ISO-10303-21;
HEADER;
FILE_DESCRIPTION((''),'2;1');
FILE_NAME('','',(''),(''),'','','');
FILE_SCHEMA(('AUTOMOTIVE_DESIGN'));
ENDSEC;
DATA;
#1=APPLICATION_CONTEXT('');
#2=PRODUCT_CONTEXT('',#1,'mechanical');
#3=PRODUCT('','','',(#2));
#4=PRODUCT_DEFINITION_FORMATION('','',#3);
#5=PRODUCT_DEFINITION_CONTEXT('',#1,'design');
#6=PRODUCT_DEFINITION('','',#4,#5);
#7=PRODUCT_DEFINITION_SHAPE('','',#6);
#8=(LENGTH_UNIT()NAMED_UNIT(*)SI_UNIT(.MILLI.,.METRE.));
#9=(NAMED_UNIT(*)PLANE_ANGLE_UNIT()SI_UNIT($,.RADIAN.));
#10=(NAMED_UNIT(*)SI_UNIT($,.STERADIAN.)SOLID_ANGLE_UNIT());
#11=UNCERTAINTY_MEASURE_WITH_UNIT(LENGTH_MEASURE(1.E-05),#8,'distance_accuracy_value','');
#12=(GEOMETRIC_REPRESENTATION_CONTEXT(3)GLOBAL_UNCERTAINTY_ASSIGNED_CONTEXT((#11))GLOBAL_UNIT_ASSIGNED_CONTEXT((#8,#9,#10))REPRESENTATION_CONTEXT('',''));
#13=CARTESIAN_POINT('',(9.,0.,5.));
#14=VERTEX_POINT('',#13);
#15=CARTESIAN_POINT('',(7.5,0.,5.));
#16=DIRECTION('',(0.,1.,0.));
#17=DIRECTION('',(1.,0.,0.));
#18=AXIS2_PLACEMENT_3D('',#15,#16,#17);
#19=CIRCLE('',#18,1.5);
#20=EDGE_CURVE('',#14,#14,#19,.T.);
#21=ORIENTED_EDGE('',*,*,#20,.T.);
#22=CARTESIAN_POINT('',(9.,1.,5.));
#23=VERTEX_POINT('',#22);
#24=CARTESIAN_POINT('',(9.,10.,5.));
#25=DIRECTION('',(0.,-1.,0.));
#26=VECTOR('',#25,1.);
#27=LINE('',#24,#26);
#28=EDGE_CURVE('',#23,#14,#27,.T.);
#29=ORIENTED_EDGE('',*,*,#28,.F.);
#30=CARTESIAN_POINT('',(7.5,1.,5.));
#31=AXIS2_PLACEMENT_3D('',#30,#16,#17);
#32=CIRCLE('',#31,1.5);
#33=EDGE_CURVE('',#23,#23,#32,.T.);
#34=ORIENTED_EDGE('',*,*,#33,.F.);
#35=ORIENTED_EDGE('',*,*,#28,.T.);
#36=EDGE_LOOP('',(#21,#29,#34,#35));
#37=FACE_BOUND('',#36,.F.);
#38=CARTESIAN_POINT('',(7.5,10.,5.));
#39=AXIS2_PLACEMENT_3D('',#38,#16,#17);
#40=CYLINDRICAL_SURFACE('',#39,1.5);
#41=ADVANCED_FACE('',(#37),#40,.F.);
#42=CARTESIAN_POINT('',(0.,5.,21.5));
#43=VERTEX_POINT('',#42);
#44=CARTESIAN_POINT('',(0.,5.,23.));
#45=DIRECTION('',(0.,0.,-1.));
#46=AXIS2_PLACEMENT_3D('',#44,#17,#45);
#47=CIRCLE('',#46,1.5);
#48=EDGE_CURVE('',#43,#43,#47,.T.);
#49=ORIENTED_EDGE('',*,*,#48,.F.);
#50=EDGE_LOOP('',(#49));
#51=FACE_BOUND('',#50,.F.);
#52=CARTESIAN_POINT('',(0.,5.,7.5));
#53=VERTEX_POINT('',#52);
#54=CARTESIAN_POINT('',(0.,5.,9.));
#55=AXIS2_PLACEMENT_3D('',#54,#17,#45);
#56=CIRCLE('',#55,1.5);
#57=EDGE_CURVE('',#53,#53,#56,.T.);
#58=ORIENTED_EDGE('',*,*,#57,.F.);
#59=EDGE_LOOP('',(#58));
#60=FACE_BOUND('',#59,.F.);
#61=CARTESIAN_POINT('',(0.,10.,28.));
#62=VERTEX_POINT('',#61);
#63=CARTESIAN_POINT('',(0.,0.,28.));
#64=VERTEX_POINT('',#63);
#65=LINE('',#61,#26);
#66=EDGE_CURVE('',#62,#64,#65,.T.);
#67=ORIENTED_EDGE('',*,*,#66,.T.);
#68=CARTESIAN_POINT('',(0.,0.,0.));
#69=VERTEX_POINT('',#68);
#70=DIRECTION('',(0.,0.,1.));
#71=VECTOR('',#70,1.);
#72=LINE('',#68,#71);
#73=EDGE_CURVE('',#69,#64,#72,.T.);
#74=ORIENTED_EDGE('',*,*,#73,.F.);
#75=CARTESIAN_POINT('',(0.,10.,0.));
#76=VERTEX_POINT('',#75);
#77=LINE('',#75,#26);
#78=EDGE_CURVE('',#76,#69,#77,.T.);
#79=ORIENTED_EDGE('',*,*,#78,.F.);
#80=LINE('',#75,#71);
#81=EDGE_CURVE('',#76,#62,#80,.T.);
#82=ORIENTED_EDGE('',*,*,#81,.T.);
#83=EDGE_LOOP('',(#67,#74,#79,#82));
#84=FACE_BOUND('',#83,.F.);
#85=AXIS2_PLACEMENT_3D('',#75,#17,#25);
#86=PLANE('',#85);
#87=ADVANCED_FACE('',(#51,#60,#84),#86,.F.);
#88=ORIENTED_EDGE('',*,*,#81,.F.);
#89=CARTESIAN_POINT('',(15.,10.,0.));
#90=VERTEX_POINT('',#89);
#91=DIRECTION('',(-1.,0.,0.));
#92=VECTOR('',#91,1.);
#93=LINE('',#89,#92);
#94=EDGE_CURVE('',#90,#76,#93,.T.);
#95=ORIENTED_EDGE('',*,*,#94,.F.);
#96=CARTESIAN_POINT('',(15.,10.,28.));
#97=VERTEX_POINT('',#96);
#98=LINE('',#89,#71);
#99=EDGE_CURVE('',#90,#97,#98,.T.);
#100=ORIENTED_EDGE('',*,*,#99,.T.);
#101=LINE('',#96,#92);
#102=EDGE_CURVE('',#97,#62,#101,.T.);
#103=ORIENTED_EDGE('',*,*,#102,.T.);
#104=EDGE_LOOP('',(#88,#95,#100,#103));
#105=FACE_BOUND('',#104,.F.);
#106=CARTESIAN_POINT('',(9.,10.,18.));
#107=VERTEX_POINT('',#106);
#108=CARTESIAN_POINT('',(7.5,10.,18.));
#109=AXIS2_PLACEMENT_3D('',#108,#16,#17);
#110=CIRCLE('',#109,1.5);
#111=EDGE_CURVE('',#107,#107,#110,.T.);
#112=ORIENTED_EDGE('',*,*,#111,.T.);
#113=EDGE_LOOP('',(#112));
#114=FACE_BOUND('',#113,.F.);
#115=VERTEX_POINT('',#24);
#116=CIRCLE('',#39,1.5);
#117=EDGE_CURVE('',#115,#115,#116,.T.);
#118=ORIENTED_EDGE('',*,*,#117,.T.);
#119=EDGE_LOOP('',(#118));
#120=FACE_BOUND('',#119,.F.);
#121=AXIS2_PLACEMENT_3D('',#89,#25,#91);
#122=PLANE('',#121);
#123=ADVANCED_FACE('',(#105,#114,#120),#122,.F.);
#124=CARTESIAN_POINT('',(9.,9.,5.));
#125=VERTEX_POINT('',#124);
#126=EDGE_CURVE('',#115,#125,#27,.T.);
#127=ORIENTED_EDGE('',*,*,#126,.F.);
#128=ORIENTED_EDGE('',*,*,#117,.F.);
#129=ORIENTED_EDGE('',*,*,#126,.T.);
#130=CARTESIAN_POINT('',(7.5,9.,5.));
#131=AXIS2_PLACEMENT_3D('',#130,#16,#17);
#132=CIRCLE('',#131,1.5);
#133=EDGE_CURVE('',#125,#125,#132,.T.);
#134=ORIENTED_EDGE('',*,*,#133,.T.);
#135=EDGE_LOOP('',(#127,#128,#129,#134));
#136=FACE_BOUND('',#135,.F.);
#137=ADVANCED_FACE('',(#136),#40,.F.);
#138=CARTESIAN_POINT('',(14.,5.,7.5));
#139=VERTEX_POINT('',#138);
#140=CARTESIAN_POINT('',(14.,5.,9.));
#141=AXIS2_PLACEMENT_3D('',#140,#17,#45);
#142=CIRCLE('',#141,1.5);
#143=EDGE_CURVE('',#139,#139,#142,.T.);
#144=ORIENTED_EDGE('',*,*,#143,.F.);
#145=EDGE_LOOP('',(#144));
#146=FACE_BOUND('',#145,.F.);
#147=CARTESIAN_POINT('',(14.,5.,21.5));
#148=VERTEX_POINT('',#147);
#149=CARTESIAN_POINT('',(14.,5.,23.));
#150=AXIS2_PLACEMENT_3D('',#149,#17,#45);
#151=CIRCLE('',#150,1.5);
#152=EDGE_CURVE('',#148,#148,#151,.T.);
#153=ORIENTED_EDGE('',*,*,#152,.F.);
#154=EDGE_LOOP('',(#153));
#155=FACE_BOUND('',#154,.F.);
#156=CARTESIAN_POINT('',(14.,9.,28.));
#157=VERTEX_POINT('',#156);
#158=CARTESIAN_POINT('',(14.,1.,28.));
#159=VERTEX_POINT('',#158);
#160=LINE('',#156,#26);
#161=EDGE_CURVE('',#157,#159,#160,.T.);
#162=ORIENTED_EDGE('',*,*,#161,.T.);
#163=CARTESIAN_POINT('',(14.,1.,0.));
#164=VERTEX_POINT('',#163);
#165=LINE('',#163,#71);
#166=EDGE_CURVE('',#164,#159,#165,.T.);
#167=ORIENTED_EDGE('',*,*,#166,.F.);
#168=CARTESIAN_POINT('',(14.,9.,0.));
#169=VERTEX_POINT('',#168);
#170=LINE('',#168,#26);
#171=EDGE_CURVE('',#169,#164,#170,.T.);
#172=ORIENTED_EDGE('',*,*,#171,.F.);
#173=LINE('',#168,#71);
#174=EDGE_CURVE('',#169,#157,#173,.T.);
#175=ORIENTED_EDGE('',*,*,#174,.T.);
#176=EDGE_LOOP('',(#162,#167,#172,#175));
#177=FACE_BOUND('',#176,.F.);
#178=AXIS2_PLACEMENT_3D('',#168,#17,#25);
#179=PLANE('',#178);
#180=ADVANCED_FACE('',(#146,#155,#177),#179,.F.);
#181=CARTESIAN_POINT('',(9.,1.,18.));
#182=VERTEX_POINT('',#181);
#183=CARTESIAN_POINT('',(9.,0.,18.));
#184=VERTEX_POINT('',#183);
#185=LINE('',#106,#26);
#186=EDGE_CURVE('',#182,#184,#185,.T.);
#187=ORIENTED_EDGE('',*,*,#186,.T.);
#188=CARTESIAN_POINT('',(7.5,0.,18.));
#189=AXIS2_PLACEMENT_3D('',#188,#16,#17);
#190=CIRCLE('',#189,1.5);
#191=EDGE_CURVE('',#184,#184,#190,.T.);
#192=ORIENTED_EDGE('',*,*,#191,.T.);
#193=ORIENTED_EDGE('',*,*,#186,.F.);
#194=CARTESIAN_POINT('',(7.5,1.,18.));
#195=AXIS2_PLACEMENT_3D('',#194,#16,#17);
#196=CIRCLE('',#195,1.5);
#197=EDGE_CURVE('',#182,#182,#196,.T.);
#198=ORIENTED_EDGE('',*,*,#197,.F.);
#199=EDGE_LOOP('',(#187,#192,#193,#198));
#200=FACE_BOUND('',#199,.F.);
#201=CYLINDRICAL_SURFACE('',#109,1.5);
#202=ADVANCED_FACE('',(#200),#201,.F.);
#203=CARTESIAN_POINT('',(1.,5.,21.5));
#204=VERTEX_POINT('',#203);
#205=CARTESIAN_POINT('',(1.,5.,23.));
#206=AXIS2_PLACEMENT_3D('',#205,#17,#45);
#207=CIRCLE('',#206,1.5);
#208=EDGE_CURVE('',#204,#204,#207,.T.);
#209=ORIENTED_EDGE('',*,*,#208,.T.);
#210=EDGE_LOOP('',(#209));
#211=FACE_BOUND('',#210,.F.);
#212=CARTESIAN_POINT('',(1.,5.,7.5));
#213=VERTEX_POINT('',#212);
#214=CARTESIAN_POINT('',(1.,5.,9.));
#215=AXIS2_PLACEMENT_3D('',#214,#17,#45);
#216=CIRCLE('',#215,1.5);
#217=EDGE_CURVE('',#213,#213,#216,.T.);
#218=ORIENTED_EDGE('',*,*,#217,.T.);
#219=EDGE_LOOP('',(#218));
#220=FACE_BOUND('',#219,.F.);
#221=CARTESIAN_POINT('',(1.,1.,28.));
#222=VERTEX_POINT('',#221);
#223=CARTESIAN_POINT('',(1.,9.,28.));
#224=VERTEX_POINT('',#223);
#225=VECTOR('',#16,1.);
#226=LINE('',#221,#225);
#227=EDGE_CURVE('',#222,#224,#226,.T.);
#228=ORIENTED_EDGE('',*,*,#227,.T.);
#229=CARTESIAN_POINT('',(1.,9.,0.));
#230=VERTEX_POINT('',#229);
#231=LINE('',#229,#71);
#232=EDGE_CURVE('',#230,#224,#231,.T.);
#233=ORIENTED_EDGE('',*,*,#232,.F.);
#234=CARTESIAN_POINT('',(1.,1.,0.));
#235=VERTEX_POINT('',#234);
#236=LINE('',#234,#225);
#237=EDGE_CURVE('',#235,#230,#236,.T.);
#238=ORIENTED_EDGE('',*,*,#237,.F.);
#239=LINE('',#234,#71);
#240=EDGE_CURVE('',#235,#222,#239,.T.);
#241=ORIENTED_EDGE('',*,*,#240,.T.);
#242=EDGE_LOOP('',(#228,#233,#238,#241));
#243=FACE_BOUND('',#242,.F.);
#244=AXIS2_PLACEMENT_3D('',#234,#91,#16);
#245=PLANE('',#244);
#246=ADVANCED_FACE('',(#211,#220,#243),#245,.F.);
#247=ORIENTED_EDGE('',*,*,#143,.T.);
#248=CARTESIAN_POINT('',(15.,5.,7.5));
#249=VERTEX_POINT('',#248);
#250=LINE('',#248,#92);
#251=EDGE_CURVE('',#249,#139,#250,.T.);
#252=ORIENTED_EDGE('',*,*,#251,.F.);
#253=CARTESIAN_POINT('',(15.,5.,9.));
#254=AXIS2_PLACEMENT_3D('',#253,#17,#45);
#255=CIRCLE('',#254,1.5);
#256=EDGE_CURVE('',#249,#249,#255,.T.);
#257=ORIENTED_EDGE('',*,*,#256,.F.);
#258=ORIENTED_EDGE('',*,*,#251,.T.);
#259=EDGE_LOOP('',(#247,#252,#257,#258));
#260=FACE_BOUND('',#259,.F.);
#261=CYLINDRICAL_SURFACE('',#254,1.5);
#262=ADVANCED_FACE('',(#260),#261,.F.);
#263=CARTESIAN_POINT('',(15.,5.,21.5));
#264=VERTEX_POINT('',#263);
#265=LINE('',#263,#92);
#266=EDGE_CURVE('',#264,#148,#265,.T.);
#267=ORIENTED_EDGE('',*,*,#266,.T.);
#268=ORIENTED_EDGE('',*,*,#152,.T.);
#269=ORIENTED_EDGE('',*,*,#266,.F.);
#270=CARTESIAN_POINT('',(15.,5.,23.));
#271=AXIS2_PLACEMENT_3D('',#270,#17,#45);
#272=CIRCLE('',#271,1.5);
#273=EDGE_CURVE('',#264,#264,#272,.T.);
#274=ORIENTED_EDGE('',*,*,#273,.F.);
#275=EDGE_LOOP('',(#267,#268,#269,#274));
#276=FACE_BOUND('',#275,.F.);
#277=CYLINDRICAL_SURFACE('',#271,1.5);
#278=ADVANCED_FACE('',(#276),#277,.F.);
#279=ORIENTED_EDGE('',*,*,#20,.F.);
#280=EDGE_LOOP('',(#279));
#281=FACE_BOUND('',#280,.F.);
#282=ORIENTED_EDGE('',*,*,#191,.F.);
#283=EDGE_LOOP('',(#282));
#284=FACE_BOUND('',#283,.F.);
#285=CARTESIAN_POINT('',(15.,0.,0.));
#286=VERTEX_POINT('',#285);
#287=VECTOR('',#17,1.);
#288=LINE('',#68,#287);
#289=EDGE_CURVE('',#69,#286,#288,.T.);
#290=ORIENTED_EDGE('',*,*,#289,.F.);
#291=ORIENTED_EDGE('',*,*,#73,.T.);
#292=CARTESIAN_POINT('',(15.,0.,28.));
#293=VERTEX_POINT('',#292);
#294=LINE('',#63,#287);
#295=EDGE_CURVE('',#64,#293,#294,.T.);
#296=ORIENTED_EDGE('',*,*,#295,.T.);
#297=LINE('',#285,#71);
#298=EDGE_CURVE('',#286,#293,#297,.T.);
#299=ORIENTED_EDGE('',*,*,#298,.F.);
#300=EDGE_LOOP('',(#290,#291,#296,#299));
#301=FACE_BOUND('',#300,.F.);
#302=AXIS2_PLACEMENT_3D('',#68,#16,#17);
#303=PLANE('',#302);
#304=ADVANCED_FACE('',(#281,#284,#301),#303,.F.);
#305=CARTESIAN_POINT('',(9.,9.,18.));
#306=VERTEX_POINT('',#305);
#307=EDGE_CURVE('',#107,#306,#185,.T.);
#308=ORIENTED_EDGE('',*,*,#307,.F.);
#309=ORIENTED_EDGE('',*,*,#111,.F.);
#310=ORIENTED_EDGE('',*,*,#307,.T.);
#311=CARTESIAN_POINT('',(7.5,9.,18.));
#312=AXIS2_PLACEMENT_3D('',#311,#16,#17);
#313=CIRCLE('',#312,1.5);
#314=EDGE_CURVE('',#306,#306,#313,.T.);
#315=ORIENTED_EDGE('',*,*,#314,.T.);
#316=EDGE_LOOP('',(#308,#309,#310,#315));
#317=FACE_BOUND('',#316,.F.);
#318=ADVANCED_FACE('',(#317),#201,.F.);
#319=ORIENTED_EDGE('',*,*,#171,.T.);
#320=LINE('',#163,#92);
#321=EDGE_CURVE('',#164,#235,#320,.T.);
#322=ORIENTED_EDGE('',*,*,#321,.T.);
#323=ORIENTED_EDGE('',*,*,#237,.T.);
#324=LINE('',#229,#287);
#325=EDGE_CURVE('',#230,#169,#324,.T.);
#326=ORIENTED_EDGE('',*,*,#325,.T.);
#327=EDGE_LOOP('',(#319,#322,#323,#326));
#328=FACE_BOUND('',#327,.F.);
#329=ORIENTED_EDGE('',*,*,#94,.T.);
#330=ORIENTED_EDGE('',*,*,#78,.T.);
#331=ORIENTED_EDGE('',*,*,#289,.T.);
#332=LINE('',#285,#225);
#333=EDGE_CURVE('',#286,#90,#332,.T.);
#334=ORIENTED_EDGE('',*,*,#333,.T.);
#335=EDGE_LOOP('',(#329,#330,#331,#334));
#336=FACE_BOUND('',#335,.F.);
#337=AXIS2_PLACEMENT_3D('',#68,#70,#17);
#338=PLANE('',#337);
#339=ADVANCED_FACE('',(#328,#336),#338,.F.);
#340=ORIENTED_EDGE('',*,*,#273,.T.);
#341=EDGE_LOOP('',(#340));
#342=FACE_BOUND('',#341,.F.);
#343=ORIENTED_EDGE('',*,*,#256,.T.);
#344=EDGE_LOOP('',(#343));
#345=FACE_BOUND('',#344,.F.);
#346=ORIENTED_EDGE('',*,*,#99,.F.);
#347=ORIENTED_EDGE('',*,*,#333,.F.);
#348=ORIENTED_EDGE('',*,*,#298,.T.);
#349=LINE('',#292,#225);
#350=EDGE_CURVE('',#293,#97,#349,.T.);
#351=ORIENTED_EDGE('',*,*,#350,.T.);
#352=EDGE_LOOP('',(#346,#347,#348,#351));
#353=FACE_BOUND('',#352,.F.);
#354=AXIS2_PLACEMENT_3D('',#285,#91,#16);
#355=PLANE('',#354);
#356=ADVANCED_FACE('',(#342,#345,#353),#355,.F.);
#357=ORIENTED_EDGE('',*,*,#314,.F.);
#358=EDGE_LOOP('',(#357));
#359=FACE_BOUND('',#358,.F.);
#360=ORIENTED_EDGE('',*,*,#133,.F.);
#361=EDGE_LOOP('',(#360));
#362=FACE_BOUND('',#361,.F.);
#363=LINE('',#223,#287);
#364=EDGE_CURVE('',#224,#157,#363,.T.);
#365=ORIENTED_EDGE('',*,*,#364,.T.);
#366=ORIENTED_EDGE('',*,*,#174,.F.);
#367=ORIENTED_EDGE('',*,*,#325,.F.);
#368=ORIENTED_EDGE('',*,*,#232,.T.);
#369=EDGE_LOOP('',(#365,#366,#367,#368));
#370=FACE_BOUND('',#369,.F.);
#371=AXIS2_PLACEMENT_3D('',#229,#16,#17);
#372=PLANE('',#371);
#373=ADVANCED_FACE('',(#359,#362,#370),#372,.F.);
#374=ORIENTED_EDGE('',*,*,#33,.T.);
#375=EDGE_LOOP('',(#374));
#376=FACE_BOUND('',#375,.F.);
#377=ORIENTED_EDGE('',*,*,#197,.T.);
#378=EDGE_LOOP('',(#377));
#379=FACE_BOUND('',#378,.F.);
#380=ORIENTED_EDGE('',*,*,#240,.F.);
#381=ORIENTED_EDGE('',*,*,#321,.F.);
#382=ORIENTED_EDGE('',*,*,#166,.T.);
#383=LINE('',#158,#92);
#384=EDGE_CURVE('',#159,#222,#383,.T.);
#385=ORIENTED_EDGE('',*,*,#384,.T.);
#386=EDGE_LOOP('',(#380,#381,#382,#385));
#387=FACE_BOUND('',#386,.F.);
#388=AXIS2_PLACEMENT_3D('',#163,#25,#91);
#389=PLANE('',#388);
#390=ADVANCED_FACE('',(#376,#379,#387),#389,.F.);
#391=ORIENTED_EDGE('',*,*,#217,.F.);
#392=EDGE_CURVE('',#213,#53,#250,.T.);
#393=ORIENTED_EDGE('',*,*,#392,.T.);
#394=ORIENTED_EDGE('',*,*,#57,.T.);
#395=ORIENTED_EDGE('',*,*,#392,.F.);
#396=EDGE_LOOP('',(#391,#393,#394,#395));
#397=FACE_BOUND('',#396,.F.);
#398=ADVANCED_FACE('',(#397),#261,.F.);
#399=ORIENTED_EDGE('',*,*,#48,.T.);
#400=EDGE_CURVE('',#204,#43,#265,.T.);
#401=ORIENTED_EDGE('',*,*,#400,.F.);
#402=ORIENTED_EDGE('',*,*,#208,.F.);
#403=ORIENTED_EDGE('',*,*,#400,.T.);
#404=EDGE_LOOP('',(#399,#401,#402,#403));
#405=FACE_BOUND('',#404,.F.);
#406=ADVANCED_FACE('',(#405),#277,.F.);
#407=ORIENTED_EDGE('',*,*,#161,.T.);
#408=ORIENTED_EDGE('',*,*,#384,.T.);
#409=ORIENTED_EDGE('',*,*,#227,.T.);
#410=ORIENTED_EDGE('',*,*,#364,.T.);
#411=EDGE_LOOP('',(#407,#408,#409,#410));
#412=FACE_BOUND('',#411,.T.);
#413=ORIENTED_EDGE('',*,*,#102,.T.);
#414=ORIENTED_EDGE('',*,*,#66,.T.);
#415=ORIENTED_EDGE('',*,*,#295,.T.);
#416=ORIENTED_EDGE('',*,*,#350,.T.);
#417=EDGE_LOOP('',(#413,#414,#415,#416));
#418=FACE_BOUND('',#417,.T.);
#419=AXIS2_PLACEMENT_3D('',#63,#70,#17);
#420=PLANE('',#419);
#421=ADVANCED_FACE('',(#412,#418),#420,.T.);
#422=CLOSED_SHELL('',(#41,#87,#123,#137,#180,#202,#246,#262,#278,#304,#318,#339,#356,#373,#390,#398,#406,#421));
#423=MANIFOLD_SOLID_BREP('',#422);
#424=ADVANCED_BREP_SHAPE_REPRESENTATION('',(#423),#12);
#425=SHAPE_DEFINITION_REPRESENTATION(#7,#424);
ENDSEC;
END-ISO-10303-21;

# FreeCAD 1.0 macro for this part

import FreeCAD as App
import Part
import Sketcher
from FreeCAD import Vector

doc = App.newDocument("Part")
body = doc.addObject("PartDesign::Body", "Body")

# Sketch on XY plane
sketch1 = body.newObject("Sketcher::SketchObject", "Sketch")
sketch1.AttachmentSupport = (doc.getObject("XY_Plane"), [""])
sketch1.MapMode = "FlatFace"
sketch1.addGeometry([
    Part.LineSegment(Vector(0, 10, 0), Vector(0, 0, 0)),  # 0
    Part.LineSegment(Vector(0, 0, 0), Vector(15, 0, 0)),  # 1
    Part.LineSegment(Vector(15, 0, 0), Vector(15, 10, 0)),  # 2
    Part.LineSegment(Vector(15, 10, 0), Vector(0, 10, 0)),  # 3
    Part.LineSegment(Vector(1, 1, 0), Vector(1, 9, 0)),  # 4
    Part.LineSegment(Vector(1, 9, 0), Vector(14, 9, 0)),  # 5
    Part.LineSegment(Vector(14, 9, 0), Vector(14, 1, 0)),  # 6
    Part.LineSegment(Vector(14, 1, 0), Vector(1, 1, 0)),  # 7
], False)
sketch1.addConstraint([
    Sketcher.Constraint("Coincident", 0, 2, 1, 1),
    Sketcher.Constraint("Coincident", 1, 2, 2, 1),
    Sketcher.Constraint("Coincident", 2, 2, 3, 1),
    Sketcher.Constraint("Coincident", 3, 2, 0, 1),
    Sketcher.Constraint("Coincident", 4, 2, 5, 1),
    Sketcher.Constraint("Coincident", 5, 2, 6, 1),
    Sketcher.Constraint("Coincident", 6, 2, 7, 1),
    Sketcher.Constraint("Coincident", 7, 2, 4, 1),
    Sketcher.Constraint("Vertical", 0),
    Sketcher.Constraint("Horizontal", 1),
    Sketcher.Constraint("Vertical", 2),
    Sketcher.Constraint("Horizontal", 3),
    Sketcher.Constraint("Vertical", 4),
    Sketcher.Constraint("Horizontal", 5),
    Sketcher.Constraint("Vertical", 6),
    Sketcher.Constraint("Horizontal", 7),
    Sketcher.Constraint("Coincident", 0, 2, -1, 1),
    Sketcher.Constraint("DistanceX", 1, 1, 1, 2, 15.0),
    Sketcher.Constraint("DistanceX", 5, 1, 5, 2, 13.0),
    Sketcher.Constraint("DistanceY", 0, 2, 0, 1, 10.0),
    Sketcher.Constraint("DistanceY", 4, 1, 4, 2, 8.0),
    Sketcher.Constraint("DistanceX", -1, 1, 4, 2, 1.0),
    Sketcher.Constraint("DistanceY", -1, 1, 6, 2, 1.0),
])
pad1 = body.newObject("PartDesign::Pad", "Pad")
pad1.Profile = sketch1
pad1.Length = 28

# Sketch on XZ plane
sketch2 = body.newObject("Sketcher::SketchObject", "Sketch001")
sketch2.AttachmentSupport = (doc.getObject("XZ_Plane"), [""])
sketch2.MapMode = "FlatFace"
sketch2.AttachmentOffset = App.Placement(Vector(0, 0, -10), App.Rotation())
sketch2.addGeometry([
    Part.Circle(Vector(7.5, 5, 0), Vector(0, 0, 1), 1.5),
    Part.Circle(Vector(7.5, 18, 0), Vector(0, 0, 1), 1.5),
], False)
sketch2.addConstraint([
    Sketcher.Constraint("Equal", 0, 1),
    Sketcher.Constraint("Vertical", 0, 3, 1, 3),
    Sketcher.Constraint("Diameter", 0, 3.0),
    Sketcher.Constraint("DistanceY", -1, 1, 0, 3, 5.0),
    Sketcher.Constraint("DistanceX", -1, 1, 0, 3, 7.5),
    Sketcher.Constraint("DistanceY", -1, 1, 1, 3, 18.0),
])
pocket1 = body.newObject("PartDesign::Pocket", "Pocket")
pocket1.Profile = sketch2
pocket1.Length = 10
pocket1.Reversed = True

# Sketch on YZ plane
sketch3 = body.newObject("Sketcher::SketchObject", "Sketch002")
sketch3.AttachmentSupport = (doc.getObject("YZ_Plane"), [""])
sketch3.MapMode = "FlatFace"
sketch3.AttachmentOffset = App.Placement(Vector(0, 0, 15), App.Rotation())
sketch3.addGeometry([
    Part.Circle(Vector(5, 9, 0), Vector(0, 0, 1), 1.5),
    Part.Circle(Vector(5, 23, 0), Vector(0, 0, 1), 1.5),
], False)
sketch3.addConstraint([
    Sketcher.Constraint("Equal", 0, 1),
    Sketcher.Constraint("Vertical", 0, 3, 1, 3),
    Sketcher.Constraint("Diameter", 0, 3.0),
    Sketcher.Constraint("DistanceX", -1, 1, 0, 3, 5.0),
    Sketcher.Constraint("DistanceY", -1, 1, 0, 3, 9.0),
    Sketcher.Constraint("DistanceY", -1, 1, 1, 3, 23.0),
])
pocket2 = body.newObject("PartDesign::Pocket", "Pocket001")
pocket2.Profile = sketch3
pocket2.Length = 15

doc.recompute()
